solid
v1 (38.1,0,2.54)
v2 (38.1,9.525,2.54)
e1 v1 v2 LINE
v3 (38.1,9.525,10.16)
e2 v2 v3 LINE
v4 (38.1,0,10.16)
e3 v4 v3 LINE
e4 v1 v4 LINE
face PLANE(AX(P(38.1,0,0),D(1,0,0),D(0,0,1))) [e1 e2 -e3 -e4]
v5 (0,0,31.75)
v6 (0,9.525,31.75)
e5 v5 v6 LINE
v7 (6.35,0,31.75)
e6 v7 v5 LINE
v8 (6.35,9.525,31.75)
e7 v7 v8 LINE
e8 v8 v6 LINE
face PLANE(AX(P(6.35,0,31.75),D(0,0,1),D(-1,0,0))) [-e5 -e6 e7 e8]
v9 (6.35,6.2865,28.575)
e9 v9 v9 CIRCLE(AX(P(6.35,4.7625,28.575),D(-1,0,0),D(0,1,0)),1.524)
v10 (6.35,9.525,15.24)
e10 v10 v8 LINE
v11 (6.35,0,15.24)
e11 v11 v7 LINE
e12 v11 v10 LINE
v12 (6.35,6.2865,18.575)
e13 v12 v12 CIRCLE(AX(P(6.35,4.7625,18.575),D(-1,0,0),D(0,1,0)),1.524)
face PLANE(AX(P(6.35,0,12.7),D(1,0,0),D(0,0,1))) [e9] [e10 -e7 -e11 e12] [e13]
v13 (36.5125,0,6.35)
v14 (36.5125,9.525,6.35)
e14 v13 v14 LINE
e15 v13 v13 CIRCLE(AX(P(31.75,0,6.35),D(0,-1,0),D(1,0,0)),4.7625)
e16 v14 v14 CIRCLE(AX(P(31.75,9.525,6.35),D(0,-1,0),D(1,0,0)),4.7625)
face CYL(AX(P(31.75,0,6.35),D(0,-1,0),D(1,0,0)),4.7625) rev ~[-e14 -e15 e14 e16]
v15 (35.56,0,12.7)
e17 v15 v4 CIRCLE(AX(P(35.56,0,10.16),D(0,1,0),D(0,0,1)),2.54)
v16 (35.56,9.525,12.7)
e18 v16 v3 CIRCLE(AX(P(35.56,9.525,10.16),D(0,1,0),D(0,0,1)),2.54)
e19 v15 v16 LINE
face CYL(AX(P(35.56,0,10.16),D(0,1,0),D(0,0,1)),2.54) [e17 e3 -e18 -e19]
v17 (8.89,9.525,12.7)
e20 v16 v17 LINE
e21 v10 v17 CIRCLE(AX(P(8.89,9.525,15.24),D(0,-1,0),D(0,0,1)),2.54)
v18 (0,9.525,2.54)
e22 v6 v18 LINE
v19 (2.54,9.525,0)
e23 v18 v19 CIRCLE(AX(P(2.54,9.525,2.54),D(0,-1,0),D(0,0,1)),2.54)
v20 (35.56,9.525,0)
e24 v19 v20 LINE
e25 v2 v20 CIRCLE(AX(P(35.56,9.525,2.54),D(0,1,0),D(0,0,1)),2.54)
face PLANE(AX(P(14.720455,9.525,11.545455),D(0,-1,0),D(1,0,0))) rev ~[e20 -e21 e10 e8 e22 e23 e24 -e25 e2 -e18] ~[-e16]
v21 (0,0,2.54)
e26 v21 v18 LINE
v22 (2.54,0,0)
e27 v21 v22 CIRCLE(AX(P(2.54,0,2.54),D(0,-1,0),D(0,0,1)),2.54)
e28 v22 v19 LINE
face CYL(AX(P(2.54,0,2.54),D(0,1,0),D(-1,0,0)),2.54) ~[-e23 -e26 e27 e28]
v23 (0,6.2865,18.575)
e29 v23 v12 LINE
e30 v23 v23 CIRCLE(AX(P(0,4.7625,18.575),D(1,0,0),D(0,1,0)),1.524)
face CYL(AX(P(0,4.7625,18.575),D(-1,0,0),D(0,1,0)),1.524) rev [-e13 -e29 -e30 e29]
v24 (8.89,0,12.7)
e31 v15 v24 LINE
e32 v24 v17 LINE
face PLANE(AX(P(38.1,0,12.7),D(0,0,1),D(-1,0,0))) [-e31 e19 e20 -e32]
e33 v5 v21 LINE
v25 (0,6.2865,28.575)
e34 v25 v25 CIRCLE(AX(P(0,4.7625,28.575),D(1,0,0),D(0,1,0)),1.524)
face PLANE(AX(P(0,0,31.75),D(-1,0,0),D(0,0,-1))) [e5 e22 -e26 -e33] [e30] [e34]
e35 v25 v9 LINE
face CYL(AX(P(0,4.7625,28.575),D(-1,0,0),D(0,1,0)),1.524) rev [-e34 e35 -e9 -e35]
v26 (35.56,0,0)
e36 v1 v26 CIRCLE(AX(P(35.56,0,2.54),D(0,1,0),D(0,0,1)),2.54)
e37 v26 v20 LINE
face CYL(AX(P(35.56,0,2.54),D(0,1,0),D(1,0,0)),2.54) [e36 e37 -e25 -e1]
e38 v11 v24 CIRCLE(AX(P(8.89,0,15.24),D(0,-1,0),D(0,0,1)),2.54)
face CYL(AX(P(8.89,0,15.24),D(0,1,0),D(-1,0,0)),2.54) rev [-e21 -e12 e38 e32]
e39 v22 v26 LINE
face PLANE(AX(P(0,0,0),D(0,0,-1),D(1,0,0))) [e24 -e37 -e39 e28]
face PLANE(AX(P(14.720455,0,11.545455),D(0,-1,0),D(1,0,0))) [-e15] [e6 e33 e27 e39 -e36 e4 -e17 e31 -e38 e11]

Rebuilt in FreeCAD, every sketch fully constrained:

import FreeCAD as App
import Part
import Sketcher

V = App.Vector
Q = App.Units.Quantity


def edges_at(feature, points):
    """Names of the edges that pass closest to the given points."""
    edges = feature.Shape.Edges
    near = lambda p: min(range(len(edges)), key=lambda i: edges[i].distToShape(Part.Vertex(*p))[0])
    return sorted({f"Edge{near(p) + 1}" for p in points})

doc = App.newDocument("Part")
params = doc.addObject("Spreadsheet::Sheet", "Params")
for row, (alias, value) in enumerate([
    ("sketch1_width", "1.5 in"),
    ("sketch1_height", "0.5 in"),
    ("sketch1_width2", "0.25 in"),
    ("pad1_length", "0.375 in"),
    ("sketch2_diameter", "0.375 in"),
    ("sketch3_diameter", "0.12 in"),
    ("pocket2_length", "1 in"),
    ("fillet_radius", "0.1 in"),
], start=1):
    params.set(f"A{row}", alias)
    params.set(f"B{row}", "=" + value)
    params.setAlias(f"B{row}", alias)

body = doc.addObject("PartDesign::Body", "Body")

# Sketch on XZ plane
sketch1 = body.newObject("Sketcher::SketchObject", "Sketch")
sketch1.AttachmentSupport = (doc.getObject("XZ_Plane"), [""])
sketch1.MapMode = "FlatFace"
sketch1.addGeometry(Part.LineSegment(V(6.35, 12.7, 0), V(6.35, 31.75, 0)), False)
sketch1.addGeometry(Part.LineSegment(V(6.35, 31.75, 0), V(0, 31.75, 0)), False)
sketch1.addGeometry(Part.LineSegment(V(0, 31.75, 0), V(0, 0, 0)), False)
sketch1.addGeometry(Part.LineSegment(V(0, 0, 0), V(38.1, 0, 0)), False)
sketch1.addGeometry(Part.LineSegment(V(38.1, 0, 0), V(38.1, 12.7, 0)), False)
sketch1.addGeometry(Part.LineSegment(V(38.1, 12.7, 0), V(6.35, 12.7, 0)), False)
sketch1.addConstraint(Sketcher.Constraint("Coincident", 0, 2, 1, 1))
sketch1.addConstraint(Sketcher.Constraint("Coincident", 1, 2, 2, 1))
sketch1.addConstraint(Sketcher.Constraint("Coincident", 2, 2, 3, 1))
sketch1.addConstraint(Sketcher.Constraint("Coincident", 3, 2, 4, 1))
sketch1.addConstraint(Sketcher.Constraint("Coincident", 4, 2, 5, 1))
sketch1.addConstraint(Sketcher.Constraint("Coincident", 5, 2, 0, 1))
sketch1.addConstraint(Sketcher.Constraint("Vertical", 0))
sketch1.addConstraint(Sketcher.Constraint("Horizontal", 1))
sketch1.addConstraint(Sketcher.Constraint("Vertical", 2))
sketch1.addConstraint(Sketcher.Constraint("Horizontal", 3))
sketch1.addConstraint(Sketcher.Constraint("Vertical", 4))
sketch1.addConstraint(Sketcher.Constraint("Horizontal", 5))
sketch1.addConstraint(Sketcher.Constraint("Coincident", 2, 2, -1, 1))
sketch1.addConstraint(Sketcher.Constraint("Equal", 5, 2))
sketch1.addConstraint(Sketcher.Constraint("DistanceX", 3, 1, 3, 2, Q("1.5 in")))
sketch1.addConstraint(Sketcher.Constraint("DistanceY", 4, 1, 4, 2, Q("0.5 in")))
sketch1.addConstraint(Sketcher.Constraint("DistanceX", 1, 2, 1, 1, Q("0.25 in")))
sketch1.setExpression("Constraints[14]", "Params.sketch1_width")
sketch1.setExpression("Constraints[15]", "Params.sketch1_height")
sketch1.setExpression("Constraints[16]", "Params.sketch1_width2")
pad1 = body.newObject("PartDesign::Pad", "Pad")
pad1.Profile = sketch1
pad1.setExpression("Length", "Params.pad1_length")
pad1.Reversed = True

# Sketch on XZ plane
sketch2 = body.newObject("Sketcher::SketchObject", "Sketch001")
sketch2.AttachmentSupport = (doc.getObject("XZ_Plane"), [""])
sketch2.MapMode = "FlatFace"
sketch2.addGeometry(Part.Circle(V(31.75, 6.35, 0), V(0, 0, 1), 4.7625), False)
sketch2.addConstraint(Sketcher.Constraint("Diameter", 0, Q("0.375 in")))
sketch2.addConstraint(Sketcher.Constraint("DistanceX", -1, 1, 0, 3, Q("1.25 in")))
sketch2.addConstraint(Sketcher.Constraint("DistanceY", -1, 1, 0, 3, Q("0.25 in")))
sketch2.setExpression("Constraints[0]", "Params.sketch2_diameter")
pocket1 = body.newObject("PartDesign::Pocket", "Pocket")
pocket1.Profile = sketch2
pocket1.Type = "ThroughAll"

# Sketch on YZ plane
sketch3 = body.newObject("Sketcher::SketchObject", "Sketch002")
sketch3.AttachmentSupport = (doc.getObject("YZ_Plane"), [""])
sketch3.MapMode = "FlatFace"
sketch3.addGeometry(Part.Circle(V(4.7625, 28.575, 0), V(0, 0, 1), 1.524), False)
sketch3.addGeometry(Part.Circle(V(4.7625, 18.575, 0), V(0, 0, 1), 1.524), False)
sketch3.addConstraint(Sketcher.Constraint("Equal", 0, 1))
sketch3.addConstraint(Sketcher.Constraint("Vertical", 0, 3, 1, 3))
sketch3.addConstraint(Sketcher.Constraint("Diameter", 0, Q("0.12 in")))
sketch3.addConstraint(Sketcher.Constraint("DistanceX", -1, 1, 0, 3, Q("0.1875 in")))
sketch3.addConstraint(Sketcher.Constraint("DistanceY", -1, 1, 0, 3, Q("1.125 in")))
sketch3.addConstraint(Sketcher.Constraint("DistanceY", -1, 1, 1, 3, 18.575))
sketch3.setExpression("Constraints[2]", "Params.sketch3_diameter")
pocket2 = body.newObject("PartDesign::Pocket", "Pocket001")
pocket2.Profile = sketch3
pocket2.setExpression("Length", "Params.pocket2_length")
pocket2.Reversed = True
doc.recompute()

fillet = body.newObject("PartDesign::Fillet", "Fillet")
fillet.Base = (pocket2, edges_at(pocket2, [
    (0, 4.763, 0),
    (38.1, 4.763, 0),
    (38.1, 4.763, 12.7),
    (6.35, 4.763, 12.7),
]))
fillet.setExpression("Radius", "Params.fillet_radius")

doc.recompute()
